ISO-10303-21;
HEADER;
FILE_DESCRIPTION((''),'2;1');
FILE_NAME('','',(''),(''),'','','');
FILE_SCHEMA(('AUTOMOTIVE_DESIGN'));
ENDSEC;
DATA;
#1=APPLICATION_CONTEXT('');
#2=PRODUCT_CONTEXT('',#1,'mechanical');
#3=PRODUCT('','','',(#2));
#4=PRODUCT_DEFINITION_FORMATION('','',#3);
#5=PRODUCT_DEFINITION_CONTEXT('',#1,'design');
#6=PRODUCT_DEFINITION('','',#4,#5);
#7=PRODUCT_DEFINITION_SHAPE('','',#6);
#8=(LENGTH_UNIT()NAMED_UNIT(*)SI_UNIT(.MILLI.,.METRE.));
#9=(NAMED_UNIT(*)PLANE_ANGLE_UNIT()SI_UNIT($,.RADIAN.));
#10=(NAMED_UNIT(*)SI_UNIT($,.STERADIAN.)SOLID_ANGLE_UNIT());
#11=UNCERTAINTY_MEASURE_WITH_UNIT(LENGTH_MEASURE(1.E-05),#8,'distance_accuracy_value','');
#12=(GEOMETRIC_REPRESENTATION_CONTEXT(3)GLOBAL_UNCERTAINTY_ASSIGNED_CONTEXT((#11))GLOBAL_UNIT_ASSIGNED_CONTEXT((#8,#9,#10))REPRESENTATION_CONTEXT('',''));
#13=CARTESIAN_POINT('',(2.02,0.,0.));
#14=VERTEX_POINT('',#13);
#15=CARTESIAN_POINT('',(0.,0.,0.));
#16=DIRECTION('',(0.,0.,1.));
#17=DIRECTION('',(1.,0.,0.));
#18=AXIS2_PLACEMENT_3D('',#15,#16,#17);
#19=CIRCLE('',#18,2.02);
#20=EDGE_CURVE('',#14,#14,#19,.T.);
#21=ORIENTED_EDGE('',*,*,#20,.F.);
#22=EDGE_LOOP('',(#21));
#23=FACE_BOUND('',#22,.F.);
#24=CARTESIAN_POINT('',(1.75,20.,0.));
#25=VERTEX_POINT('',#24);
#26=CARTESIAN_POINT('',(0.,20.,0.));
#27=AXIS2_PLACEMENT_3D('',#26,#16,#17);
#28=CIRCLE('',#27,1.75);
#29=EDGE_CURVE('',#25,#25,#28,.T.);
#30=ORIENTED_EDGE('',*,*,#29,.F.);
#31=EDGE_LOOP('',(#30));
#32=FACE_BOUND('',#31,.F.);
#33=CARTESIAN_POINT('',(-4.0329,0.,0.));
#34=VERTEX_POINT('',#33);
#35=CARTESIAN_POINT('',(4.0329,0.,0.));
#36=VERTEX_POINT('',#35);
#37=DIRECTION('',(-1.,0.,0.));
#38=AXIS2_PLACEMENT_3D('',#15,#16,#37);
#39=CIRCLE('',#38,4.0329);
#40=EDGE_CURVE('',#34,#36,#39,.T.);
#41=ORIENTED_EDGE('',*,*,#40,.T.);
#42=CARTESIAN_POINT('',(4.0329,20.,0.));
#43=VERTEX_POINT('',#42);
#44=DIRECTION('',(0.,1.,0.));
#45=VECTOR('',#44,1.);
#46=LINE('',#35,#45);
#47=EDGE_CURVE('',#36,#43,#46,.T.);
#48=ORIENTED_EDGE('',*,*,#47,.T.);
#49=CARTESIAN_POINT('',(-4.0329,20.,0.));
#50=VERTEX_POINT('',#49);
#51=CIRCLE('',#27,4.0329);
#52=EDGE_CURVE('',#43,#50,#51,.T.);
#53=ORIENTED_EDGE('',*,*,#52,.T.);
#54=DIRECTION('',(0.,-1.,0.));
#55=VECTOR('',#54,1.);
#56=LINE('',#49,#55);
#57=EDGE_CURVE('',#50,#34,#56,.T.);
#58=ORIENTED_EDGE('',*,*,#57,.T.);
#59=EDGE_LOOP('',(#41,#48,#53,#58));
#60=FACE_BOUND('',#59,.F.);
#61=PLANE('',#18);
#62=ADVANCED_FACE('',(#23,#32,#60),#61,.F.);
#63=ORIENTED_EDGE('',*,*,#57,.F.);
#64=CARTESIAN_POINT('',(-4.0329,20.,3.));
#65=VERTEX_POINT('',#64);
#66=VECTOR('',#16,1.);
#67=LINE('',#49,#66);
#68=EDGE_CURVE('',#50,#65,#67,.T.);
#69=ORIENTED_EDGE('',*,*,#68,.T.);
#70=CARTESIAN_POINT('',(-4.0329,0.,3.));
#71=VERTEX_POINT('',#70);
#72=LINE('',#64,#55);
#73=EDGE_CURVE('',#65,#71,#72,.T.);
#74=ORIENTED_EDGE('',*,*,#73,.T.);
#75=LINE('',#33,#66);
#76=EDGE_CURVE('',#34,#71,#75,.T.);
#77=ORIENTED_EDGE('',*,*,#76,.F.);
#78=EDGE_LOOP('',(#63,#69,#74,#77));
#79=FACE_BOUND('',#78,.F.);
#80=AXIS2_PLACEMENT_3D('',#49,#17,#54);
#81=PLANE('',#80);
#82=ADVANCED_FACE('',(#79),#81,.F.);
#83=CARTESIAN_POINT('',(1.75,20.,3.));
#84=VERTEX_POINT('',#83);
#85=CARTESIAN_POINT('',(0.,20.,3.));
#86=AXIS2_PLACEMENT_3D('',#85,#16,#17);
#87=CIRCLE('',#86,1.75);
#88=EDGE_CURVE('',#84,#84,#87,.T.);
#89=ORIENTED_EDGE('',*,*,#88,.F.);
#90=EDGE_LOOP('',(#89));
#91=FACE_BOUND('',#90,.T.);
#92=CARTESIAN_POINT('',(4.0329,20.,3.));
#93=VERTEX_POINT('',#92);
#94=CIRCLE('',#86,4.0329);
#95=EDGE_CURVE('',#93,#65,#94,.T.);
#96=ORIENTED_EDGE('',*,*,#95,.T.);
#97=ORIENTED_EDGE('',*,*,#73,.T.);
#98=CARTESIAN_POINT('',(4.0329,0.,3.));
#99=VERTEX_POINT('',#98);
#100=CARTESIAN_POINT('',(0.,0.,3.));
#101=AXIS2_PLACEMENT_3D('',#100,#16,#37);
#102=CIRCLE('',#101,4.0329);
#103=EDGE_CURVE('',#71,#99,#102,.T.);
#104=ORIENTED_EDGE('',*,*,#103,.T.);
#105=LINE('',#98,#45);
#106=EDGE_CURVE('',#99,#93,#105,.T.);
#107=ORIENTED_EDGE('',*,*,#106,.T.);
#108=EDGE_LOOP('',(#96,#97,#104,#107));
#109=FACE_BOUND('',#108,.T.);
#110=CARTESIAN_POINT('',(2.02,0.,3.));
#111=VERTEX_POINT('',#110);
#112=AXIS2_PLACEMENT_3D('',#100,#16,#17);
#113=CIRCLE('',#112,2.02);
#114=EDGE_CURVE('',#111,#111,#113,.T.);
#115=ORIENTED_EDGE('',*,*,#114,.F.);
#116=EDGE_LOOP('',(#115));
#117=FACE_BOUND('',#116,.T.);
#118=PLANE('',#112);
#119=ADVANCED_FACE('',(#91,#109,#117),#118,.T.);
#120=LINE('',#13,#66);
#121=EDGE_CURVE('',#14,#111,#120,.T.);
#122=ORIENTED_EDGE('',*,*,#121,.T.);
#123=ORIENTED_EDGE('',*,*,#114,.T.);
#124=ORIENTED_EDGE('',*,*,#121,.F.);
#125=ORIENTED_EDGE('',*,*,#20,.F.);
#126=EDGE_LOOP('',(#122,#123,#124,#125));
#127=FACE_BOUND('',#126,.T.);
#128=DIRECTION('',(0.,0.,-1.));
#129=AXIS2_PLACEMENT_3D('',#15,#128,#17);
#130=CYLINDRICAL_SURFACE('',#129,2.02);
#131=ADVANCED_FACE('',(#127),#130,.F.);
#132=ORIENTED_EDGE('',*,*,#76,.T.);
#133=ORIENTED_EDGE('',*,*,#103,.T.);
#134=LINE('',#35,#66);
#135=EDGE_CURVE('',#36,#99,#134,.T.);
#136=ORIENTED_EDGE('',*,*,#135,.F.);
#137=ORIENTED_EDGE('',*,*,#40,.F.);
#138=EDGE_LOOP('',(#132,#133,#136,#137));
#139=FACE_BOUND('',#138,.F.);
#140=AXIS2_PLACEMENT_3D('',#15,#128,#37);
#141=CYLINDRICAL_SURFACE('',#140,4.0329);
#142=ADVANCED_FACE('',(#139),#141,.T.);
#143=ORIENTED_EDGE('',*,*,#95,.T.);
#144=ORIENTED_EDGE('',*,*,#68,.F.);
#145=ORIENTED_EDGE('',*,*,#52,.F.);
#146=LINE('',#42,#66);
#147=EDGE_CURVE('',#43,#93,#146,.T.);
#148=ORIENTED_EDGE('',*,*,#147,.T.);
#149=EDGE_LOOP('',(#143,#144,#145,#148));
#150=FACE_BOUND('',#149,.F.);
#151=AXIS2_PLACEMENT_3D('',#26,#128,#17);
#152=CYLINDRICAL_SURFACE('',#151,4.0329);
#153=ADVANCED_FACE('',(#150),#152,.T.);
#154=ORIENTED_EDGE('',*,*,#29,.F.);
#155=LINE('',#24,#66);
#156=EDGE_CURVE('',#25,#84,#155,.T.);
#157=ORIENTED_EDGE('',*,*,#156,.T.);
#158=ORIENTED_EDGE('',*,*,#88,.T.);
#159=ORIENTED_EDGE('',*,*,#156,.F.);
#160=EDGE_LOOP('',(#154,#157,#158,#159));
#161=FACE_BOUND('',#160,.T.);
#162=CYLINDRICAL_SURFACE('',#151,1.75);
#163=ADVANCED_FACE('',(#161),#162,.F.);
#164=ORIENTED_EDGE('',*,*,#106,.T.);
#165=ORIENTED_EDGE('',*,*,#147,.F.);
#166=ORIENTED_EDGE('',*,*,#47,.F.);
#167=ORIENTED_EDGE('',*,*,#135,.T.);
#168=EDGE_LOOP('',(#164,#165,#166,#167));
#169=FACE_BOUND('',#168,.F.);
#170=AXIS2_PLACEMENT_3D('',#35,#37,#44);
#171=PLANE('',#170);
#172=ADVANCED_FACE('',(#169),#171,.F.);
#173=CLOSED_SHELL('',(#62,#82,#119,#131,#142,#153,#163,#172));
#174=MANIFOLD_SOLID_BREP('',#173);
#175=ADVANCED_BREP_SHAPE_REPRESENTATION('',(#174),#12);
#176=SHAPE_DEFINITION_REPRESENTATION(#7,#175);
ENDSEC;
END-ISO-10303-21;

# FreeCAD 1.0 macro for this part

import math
import FreeCAD as App
import Part
import Sketcher
Q = App.Units.Quantity

doc = App.newDocument("Part")
body = doc.addObject("PartDesign::Body", "Body")

# Sketch on XY plane
sketch1 = body.newObject("Sketcher::SketchObject", "Sketch")
sketch1.AttachmentSupport = (doc.getObject("XY_Plane"), [""])
sketch1.MapMode = "FlatFace"
sketch1.addGeometry([
    Part.ArcOfCircle(Part.Circle(App.Vector(0, 0, 0), App.Vector(0, 0, 1), 4), math.radians(180), math.radians(360)),  # 0
    Part.LineSegment(App.Vector(4, 0, 0), App.Vector(4, 20, 0)),  # 1
    Part.ArcOfCircle(Part.Circle(App.Vector(0, 20, 0), App.Vector(0, 0, 1), 4), math.radians(0), math.radians(180)),  # 2
    Part.LineSegment(App.Vector(-4, 20, 0), App.Vector(-4, 0, 0)),  # 3
    Part.Circle(App.Vector(0, 0, 0), App.Vector(0, 0, 1), 2),  # 4
    Part.Circle(App.Vector(0, 20, 0), App.Vector(0, 0, 1), 1.8),  # 5
], False)
sketch1.addConstraint([
    Sketcher.Constraint("Tangent", 0, 2, 1, 1),
    Sketcher.Constraint("Tangent", 1, 2, 2, 1),
    Sketcher.Constraint("Tangent", 2, 2, 3, 1),
    Sketcher.Constraint("Tangent", 3, 2, 0, 1),
    Sketcher.Constraint("Vertical", 1),
    Sketcher.Constraint("Vertical", 3),
    Sketcher.Constraint("Coincident", 0, 3, -1, 1),
    Sketcher.Constraint("Coincident", 4, 3, -1, 1),
    Sketcher.Constraint("Coincident", 5, 3, 2, 3),
    Sketcher.Constraint("Diameter", 5, Q("3.5 mm")),
    Sketcher.Constraint("Diameter", 4, Q("4.04 mm")),
    Sketcher.Constraint("DistanceY", 1, 1, 1, 2, Q("20 mm")),
    Sketcher.Constraint("Radius", 0, Q("4.033 mm")),
])
pad1 = body.newObject("PartDesign::Pad", "Pad")
pad1.Profile = sketch1
pad1.Length = 3

doc.recompute()
